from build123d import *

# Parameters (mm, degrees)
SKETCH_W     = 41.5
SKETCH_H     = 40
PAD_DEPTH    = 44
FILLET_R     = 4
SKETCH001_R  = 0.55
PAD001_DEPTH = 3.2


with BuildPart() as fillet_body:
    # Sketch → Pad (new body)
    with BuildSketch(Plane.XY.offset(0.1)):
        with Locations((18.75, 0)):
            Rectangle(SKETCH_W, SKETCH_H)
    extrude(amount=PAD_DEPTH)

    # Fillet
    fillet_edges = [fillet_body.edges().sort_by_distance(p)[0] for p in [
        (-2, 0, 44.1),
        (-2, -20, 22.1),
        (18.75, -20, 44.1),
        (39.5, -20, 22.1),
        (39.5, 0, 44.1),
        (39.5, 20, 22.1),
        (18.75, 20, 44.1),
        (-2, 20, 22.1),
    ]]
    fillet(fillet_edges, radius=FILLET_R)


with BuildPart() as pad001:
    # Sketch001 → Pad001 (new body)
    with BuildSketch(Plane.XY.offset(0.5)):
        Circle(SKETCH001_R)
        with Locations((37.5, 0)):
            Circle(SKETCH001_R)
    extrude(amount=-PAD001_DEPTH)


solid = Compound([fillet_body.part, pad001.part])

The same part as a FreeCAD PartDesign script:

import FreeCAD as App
import Part
import Sketcher
Q = App.Units.Quantity


def edges_at(feature, points):
    """Names of the edges that pass closest to the given points."""
    edges = feature.Shape.Edges
    near = lambda p: min(range(len(edges)), key=lambda i: edges[i].distToShape(Part.Vertex(*p))[0])
    return sorted({f"Edge{near(p) + 1}" for p in points})


def add_polygon(sketch, points):
    """Adds a closed chain of lines whose ends are joined by coincident constraints."""
    first, n = sketch.GeometryCount, len(points)
    for a, b in zip(points, points[1:] + points[:1]):
        sketch.addGeometry(Part.LineSegment(App.Vector(*a, 0), App.Vector(*b, 0)), False)
    for i in range(n):
        sketch.addConstraint(Sketcher.Constraint("Coincident", first + i, 2, first + (i + 1) % n, 1))

doc = App.newDocument("Part")
body = doc.addObject("PartDesign::Body", "Body")

# Sketch on XY plane
sketch1 = body.newObject("Sketcher::SketchObject", "Sketch")
sketch1.AttachmentSupport = (doc.getObject("XY_Plane"), [""])
sketch1.MapMode = "FlatFace"
sketch1.AttachmentOffset = App.Placement(App.Vector(0, 0, 0.1), App.Rotation())
add_polygon(sketch1, [(-2, 20), (-2, -20), (39.5, -20), (39.5, 20)])  # lines 0-3
sketch1.addConstraint([
    Sketcher.Constraint("Vertical", 0),
    Sketcher.Constraint("Horizontal", 1),
    Sketcher.Constraint("Vertical", 2),
    Sketcher.Constraint("Horizontal", 3),
    Sketcher.Constraint("DistanceY", 0, 2, 0, 1, Q("40 mm")),
    Sketcher.Constraint("DistanceX", 1, 1, 1, 2, Q("41.5 mm")),
    Sketcher.Constraint("DistanceX", 0, 2, -1, 1, Q("2 mm")),
    Sketcher.Constraint("DistanceY", 0, 2, -1, 1, Q("20 mm")),
])
pad1 = body.newObject("PartDesign::Pad", "Pad")
pad1.Profile = sketch1
pad1.Length = 44
doc.recompute()

fillet = body.newObject("PartDesign::Fillet", "Fillet")
fillet.Base = (pad1, edges_at(pad1, [
    (-2, 0, 44.1),
    (-2, -20, 22.1),
    (18.75, -20, 44.1),
    (39.5, -20, 22.1),
    (39.5, 0, 44.1),
    (39.5, 20, 22.1),
    (18.75, 20, 44.1),
    (-2, 20, 22.1),
]))
fillet.Radius = 4
body2 = doc.addObject("PartDesign::Body", "Body001")
body2.AllowCompound = True

# Sketch on XY plane
sketch2 = body2.newObject("Sketcher::SketchObject", "Sketch001")
sketch2.AttachmentSupport = (doc.getObject("XY_Plane001"), [""])
sketch2.MapMode = "FlatFace"
sketch2.AttachmentOffset = App.Placement(App.Vector(0, 0, 0.5), App.Rotation())
sketch2.addGeometry([
    Part.Circle(App.Vector(0, 0, 0), App.Vector(0, 0, 1), 0.55),
    Part.Circle(App.Vector(37.5, 0, 0), App.Vector(0, 0, 1), 0.55),
], False)
sketch2.addConstraint([
    Sketcher.Constraint("Coincident", 0, 3, -1, 1),
    Sketcher.Constraint("Equal", 0, 1),
    Sketcher.Constraint("PointOnObject", 1, 3, -1),
    Sketcher.Constraint("Diameter", 0, Q("1.1 mm")),
    Sketcher.Constraint("DistanceX", -1, 1, 1, 3, Q("37.5 mm")),
])
pad2 = body2.newObject("PartDesign::Pad", "Pad001")
pad2.Profile = sketch2
pad2.Length = 3.2
pad2.Reversed = True

doc.recompute()
